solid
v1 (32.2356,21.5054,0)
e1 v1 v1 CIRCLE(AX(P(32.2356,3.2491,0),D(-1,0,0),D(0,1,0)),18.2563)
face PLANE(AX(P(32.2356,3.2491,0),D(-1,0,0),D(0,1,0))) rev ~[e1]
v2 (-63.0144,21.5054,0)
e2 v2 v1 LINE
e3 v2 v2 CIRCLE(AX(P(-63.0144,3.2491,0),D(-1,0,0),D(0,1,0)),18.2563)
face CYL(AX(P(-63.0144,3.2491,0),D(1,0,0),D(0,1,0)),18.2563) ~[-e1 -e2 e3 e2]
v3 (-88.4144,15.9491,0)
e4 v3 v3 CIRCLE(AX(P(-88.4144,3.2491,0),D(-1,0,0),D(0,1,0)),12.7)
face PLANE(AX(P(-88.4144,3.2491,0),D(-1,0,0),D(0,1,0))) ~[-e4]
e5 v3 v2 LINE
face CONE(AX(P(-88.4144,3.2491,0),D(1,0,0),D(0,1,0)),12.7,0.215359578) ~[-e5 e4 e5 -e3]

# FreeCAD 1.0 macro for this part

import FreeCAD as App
import Part
import Sketcher
from FreeCAD import Vector
Q = App.Units.Quantity


def add_polygon(sketch, points):
    """Adds a closed chain of lines whose ends are joined by coincident constraints."""
    first, n = sketch.GeometryCount, len(points)
    for a, b in zip(points, points[1:] + points[:1]):
        sketch.addGeometry(Part.LineSegment(App.Vector(*a, 0), App.Vector(*b, 0)), False)
    for i in range(n):
        sketch.addConstraint(Sketcher.Constraint("Coincident", first + i, 2, first + (i + 1) % n, 1))

doc = App.newDocument("Part")
body = doc.addObject("PartDesign::Body", "Body")

sketch1 = doc.addObject("Sketcher::SketchObject", "Sketch")
body.addObject(sketch1)
sketch1.AttachmentSupport = (doc.XY_Plane, [""])
sketch1.MapMode = "FlatFace"
add_polygon(sketch1, [(32, 22), (-63, 22), (-88, 16), (-88, 3), (32, 3)])
sketch1.addGeometry(Part.LineSegment(Vector(32, 3, 0), Vector(-88, 3, 0)), True)
sketch1.addConstraint(Sketcher.Constraint("Horizontal", 0))
sketch1.addConstraint(Sketcher.Constraint("Vertical", 2))
sketch1.addConstraint(Sketcher.Constraint("Horizontal", 3))
sketch1.addConstraint(Sketcher.Constraint("Vertical", 4))
sketch1.addConstraint(Sketcher.Constraint("Horizontal", 5))
sketch1.addConstraint(Sketcher.Constraint("Coincident", 5, 1, 3, 2))
sketch1.addConstraint(Sketcher.Constraint("Vertical", 1, 2, 5, 2))
sketch1.addConstraint(Sketcher.Constraint("DistanceY", 2, 2, 2, 1, Q("0.5 in")))
sketch1.addConstraint(Sketcher.Constraint("DistanceX", 1, 2, 0, 2, Q("1 in")))
sketch1.addConstraint(Sketcher.Constraint("DistanceX", 3, 1, 3, 2, Q("4.75 in")))
sketch1.addConstraint(Sketcher.Constraint("DistanceY", 4, 1, 4, 2, Q("0.718752 in")))
sketch1.addConstraint(Sketcher.Constraint("DistanceX", 0, 2, -1, 1, Q("63.0144 mm")))
sketch1.addConstraint(Sketcher.Constraint("DistanceY", -1, 1, 0, 2, Q("21.5054 mm")))
revolution = doc.addObject("PartDesign::Revolution", "Revolution")
body.addObject(revolution)
revolution.Profile = sketch1
revolution.ReferenceAxis = (sketch1, ["Axis0"])
revolution.Angle = 360

doc.recompute()
